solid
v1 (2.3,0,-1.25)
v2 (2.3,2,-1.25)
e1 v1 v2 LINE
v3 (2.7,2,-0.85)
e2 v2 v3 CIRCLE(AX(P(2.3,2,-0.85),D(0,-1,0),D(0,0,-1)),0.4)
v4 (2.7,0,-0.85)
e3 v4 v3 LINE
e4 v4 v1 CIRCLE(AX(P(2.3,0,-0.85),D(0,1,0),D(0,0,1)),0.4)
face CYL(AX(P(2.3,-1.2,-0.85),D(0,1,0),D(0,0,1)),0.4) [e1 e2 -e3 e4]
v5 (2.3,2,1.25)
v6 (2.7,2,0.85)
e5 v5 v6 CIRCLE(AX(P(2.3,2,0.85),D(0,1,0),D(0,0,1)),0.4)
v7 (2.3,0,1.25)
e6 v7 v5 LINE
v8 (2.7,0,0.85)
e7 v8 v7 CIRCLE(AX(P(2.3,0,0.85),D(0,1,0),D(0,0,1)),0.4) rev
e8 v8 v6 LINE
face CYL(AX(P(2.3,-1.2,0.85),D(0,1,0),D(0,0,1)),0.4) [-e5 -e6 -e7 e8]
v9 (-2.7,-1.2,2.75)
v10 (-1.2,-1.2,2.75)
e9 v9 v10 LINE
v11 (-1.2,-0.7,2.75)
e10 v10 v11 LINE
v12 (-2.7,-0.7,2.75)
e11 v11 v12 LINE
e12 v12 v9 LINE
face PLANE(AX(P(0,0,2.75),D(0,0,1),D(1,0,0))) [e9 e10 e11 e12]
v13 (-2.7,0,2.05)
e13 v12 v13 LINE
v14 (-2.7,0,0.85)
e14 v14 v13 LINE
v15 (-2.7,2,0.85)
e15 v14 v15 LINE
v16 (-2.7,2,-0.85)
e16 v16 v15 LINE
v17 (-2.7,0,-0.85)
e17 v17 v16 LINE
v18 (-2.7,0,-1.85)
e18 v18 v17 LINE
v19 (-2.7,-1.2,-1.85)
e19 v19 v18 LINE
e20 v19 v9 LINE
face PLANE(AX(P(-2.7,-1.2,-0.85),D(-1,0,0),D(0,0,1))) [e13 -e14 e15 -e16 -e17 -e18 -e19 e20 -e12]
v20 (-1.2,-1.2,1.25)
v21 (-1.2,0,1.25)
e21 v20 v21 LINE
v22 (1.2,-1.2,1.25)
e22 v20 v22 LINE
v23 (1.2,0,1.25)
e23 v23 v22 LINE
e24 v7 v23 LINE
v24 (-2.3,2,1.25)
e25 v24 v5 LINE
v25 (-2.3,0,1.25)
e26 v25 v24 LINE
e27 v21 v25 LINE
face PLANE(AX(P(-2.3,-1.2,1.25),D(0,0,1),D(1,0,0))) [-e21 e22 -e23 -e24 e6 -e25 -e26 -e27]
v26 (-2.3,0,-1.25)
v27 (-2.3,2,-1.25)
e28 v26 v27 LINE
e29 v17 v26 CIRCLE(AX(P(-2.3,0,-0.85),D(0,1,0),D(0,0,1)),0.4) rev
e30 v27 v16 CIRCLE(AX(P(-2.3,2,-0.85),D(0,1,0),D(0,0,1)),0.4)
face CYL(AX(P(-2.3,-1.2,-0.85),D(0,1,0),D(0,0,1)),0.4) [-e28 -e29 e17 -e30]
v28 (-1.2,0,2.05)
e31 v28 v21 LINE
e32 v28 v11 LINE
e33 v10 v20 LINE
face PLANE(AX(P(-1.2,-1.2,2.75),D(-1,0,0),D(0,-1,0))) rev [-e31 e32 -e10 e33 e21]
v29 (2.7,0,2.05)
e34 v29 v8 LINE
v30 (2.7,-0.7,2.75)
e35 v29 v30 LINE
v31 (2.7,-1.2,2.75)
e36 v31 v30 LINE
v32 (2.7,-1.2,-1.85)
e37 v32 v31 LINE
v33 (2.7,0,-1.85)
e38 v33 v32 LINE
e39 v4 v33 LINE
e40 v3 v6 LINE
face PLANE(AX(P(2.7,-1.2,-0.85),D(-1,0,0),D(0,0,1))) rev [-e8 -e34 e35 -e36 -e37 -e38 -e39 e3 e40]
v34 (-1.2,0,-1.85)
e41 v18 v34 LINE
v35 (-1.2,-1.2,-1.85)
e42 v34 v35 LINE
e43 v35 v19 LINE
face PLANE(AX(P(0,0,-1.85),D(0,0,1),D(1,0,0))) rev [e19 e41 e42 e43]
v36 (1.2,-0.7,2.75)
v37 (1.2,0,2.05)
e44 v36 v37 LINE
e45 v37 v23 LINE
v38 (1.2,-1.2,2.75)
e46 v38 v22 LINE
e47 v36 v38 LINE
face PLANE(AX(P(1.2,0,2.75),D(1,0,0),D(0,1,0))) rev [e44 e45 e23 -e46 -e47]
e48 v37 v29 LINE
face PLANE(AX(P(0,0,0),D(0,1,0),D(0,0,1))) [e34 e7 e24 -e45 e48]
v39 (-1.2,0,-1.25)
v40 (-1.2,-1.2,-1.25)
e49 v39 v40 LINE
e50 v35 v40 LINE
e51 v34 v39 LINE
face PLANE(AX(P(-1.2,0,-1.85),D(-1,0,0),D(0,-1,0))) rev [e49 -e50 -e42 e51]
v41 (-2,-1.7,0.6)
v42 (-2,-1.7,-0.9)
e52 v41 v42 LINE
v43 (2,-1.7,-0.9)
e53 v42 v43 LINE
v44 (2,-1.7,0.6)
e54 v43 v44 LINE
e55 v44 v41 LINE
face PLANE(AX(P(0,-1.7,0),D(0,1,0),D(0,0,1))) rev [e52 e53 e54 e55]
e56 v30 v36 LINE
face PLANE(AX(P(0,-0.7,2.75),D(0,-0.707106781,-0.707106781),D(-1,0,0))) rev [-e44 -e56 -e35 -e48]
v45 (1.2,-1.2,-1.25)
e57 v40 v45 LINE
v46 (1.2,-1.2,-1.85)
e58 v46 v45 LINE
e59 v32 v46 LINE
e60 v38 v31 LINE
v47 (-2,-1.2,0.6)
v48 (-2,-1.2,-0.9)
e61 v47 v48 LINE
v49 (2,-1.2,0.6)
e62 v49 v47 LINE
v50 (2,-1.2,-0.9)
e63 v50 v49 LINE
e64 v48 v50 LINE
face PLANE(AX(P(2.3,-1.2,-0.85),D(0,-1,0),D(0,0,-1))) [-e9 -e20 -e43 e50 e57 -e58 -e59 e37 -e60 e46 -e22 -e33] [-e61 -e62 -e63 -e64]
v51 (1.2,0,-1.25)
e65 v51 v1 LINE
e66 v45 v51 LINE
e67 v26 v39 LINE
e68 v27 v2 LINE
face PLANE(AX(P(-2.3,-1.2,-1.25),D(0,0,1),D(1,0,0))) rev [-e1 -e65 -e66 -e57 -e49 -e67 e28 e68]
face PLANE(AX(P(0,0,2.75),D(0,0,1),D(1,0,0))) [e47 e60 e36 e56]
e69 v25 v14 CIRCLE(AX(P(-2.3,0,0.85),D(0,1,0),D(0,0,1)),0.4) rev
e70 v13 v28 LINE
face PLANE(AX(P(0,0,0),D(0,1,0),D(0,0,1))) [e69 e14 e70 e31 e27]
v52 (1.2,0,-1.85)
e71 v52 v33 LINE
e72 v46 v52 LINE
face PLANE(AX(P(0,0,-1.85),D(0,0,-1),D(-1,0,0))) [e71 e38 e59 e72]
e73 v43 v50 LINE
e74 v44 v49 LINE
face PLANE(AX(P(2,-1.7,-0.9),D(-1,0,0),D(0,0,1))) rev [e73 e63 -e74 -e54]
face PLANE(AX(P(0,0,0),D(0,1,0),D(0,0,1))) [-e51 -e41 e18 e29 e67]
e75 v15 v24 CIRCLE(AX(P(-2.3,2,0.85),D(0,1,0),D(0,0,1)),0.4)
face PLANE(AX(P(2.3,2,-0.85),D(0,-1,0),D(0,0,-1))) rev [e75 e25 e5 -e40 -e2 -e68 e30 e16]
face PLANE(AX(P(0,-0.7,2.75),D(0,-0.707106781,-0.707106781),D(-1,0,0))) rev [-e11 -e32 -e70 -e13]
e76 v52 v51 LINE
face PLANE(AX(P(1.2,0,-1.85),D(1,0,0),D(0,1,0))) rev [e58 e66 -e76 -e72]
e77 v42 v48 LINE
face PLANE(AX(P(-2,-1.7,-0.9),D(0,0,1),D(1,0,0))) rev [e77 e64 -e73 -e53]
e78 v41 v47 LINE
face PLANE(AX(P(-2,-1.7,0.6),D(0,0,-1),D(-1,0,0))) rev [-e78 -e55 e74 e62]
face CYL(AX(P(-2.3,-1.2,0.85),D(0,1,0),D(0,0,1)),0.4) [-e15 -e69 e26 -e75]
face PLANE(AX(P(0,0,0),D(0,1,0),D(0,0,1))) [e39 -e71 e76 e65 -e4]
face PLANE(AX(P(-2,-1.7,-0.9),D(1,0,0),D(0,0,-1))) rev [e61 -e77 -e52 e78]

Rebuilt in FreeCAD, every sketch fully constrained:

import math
import FreeCAD as App
import Part
import Sketcher

V = App.Vector


def edges_at(feature, points):
    """Names of the edges that pass closest to the given points."""
    edges = feature.Shape.Edges
    near = lambda p: min(range(len(edges)), key=lambda i: edges[i].distToShape(Part.Vertex(*p))[0])
    return sorted({f"Edge{near(p) + 1}" for p in points})

doc = App.newDocument("Part")
body = doc.addObject("PartDesign::Body", "Body")

# Sketch on XZ plane
sketch1 = body.newObject("Sketcher::SketchObject", "Sketch")
sketch1.AttachmentSupport = (doc.getObject("XZ_Plane"), [""])
sketch1.MapMode = "FlatFace"
sketch1.addGeometry([
    Part.LineSegment(V(-2.7, -0.85, 0), V(-2.7, 0.85, 0)),  # 0
    Part.ArcOfCircle(Part.Circle(V(-2.3, 0.85, 0), V(0, 0, 1), 0.4), math.radians(90), math.radians(180)),  # 1
    Part.LineSegment(V(-2.3, 1.25, 0), V(2.3, 1.25, 0)),  # 2
    Part.ArcOfCircle(Part.Circle(V(2.3, 0.85, 0), V(0, 0, 1), 0.4), math.radians(0), math.radians(90)),  # 3
    Part.LineSegment(V(2.7, 0.85, 0), V(2.7, -0.85, 0)),  # 4
    Part.ArcOfCircle(Part.Circle(V(2.3, -0.85, 0), V(0, 0, 1), 0.4), math.radians(-90), math.radians(0)),  # 5
    Part.LineSegment(V(2.3, -1.25, 0), V(-2.3, -1.25, 0)),  # 6
    Part.ArcOfCircle(Part.Circle(V(-2.3, -0.85, 0), V(0, 0, 1), 0.4), math.radians(-180), math.radians(-90)),  # 7
], False)
sketch1.addConstraint([
    Sketcher.Constraint("Tangent", 0, 2, 1, 2),
    Sketcher.Constraint("Tangent", 1, 1, 2, 1),
    Sketcher.Constraint("Tangent", 2, 2, 3, 2),
    Sketcher.Constraint("Tangent", 3, 1, 4, 1),
    Sketcher.Constraint("Tangent", 4, 2, 5, 2),
    Sketcher.Constraint("Tangent", 5, 1, 6, 1),
    Sketcher.Constraint("Tangent", 6, 2, 7, 2),
    Sketcher.Constraint("Tangent", 7, 1, 0, 1),
    Sketcher.Constraint("Vertical", 0),
    Sketcher.Constraint("Horizontal", 2),
    Sketcher.Constraint("Vertical", 4),
    Sketcher.Constraint("Horizontal", 6),
    Sketcher.Constraint("Equal", 1, 3),
    Sketcher.Constraint("Equal", 3, 5),
    Sketcher.Constraint("Equal", 5, 7),
    Sketcher.Constraint("Symmetric", 1, 3, 5, 3, -1, 1),
    Sketcher.Constraint("Radius", 1, 0.4),
    Sketcher.Constraint("DistanceX", 2, 1, 2, 2, 4.6),
    Sketcher.Constraint("DistanceY", 0, 1, 0, 2, 1.7),
])
pad1 = body.newObject("PartDesign::Pad", "Pad")
pad1.Profile = sketch1
pad1.Type = "TwoLengths"
pad1.Length = 2
pad1.Length2 = 1.2
pad1.Reversed = True

# Sketch on XZ plane
sketch2 = body.newObject("Sketcher::SketchObject", "Sketch001")
sketch2.AttachmentSupport = (doc.getObject("XZ_Plane"), [""])
sketch2.MapMode = "FlatFace"
sketch2.addGeometry([
    Part.LineSegment(V(-2.7, -1.25, 0), V(-2.7, 1.25, 0)),
    Part.LineSegment(V(-2.7, 1.25, 0), V(2.7, 1.25, 0)),
    Part.LineSegment(V(2.7, 1.25, 0), V(2.7, -1.25, 0)),
    Part.LineSegment(V(2.7, -1.25, 0), V(-2.7, -1.25, 0)),
], False)
sketch2.addConstraint([
    Sketcher.Constraint("Coincident", 0, 2, 1, 1),
    Sketcher.Constraint("Coincident", 1, 2, 2, 1),
    Sketcher.Constraint("Coincident", 2, 2, 3, 1),
    Sketcher.Constraint("Coincident", 3, 2, 0, 1),
    Sketcher.Constraint("Vertical", 0),
    Sketcher.Constraint("Horizontal", 1),
    Sketcher.Constraint("Vertical", 2),
    Sketcher.Constraint("Horizontal", 3),
    Sketcher.Constraint("Symmetric", 0, 2, 2, 2, -1, 1),
    Sketcher.Constraint("DistanceX", 1, 1, 1, 2, 5.4),
    Sketcher.Constraint("DistanceY", 0, 1, 0, 2, 2.5),
])
pad2 = body.newObject("PartDesign::Pad", "Pad001")
pad2.Profile = sketch2
pad2.Length = 1.2

# Sketch on XZ plane
sketch3 = body.newObject("Sketcher::SketchObject", "Sketch002")
sketch3.AttachmentSupport = (doc.getObject("XZ_Plane"), [""])
sketch3.MapMode = "FlatFace"
sketch3.AttachmentOffset = App.Placement(V(0, 0, 1.2), App.Rotation())
sketch3.addGeometry([
    Part.LineSegment(V(2, -0.9, 0), V(2, 0.6, 0)),
    Part.LineSegment(V(2, 0.6, 0), V(-2, 0.6, 0)),
    Part.LineSegment(V(-2, 0.6, 0), V(-2, -0.9, 0)),
    Part.LineSegment(V(-2, -0.9, 0), V(2, -0.9, 0)),
], False)
sketch3.addConstraint([
    Sketcher.Constraint("Coincident", 0, 2, 1, 1),
    Sketcher.Constraint("Coincident", 1, 2, 2, 1),
    Sketcher.Constraint("Coincident", 2, 2, 3, 1),
    Sketcher.Constraint("Coincident", 3, 2, 0, 1),
    Sketcher.Constraint("Vertical", 0),
    Sketcher.Constraint("Horizontal", 1),
    Sketcher.Constraint("Vertical", 2),
    Sketcher.Constraint("Horizontal", 3),
    Sketcher.Constraint("DistanceX", 1, 2, 1, 1, 4.0),
    Sketcher.Constraint("DistanceY", 0, 1, 0, 2, 1.5),
    Sketcher.Constraint("DistanceX", -1, 1, 0, 2, 2.0),
    Sketcher.Constraint("DistanceY", -1, 1, 0, 2, 0.6),
])
pad3 = body.newObject("PartDesign::Pad", "Pad002")
pad3.Profile = sketch3
pad3.Length = 0.5

# Sketch on XY plane
sketch4 = body.newObject("Sketcher::SketchObject", "Sketch003")
sketch4.AttachmentSupport = (doc.getObject("XY_Plane"), [""])
sketch4.MapMode = "FlatFace"
sketch4.AttachmentOffset = App.Placement(V(0, 0, -1.25), App.Rotation())
sketch4.addGeometry([
    Part.LineSegment(V(-1.2, 0, 0), V(-1.2, -1.2, 0)),  # 0
    Part.LineSegment(V(-1.2, -1.2, 0), V(-2.7, -1.2, 0)),  # 1
    Part.LineSegment(V(-2.7, -1.2, 0), V(-2.7, 0, 0)),  # 2
    Part.LineSegment(V(-2.7, 0, 0), V(-1.2, 0, 0)),  # 3
    Part.LineSegment(V(2.7, 0, 0), V(2.7, -1.2, 0)),  # 4
    Part.LineSegment(V(2.7, -1.2, 0), V(1.2, -1.2, 0)),  # 5
    Part.LineSegment(V(1.2, -1.2, 0), V(1.2, 0, 0)),  # 6
    Part.LineSegment(V(1.2, 0, 0), V(2.7, 0, 0)),  # 7
], False)
sketch4.addConstraint([
    Sketcher.Constraint("Coincident", 0, 2, 1, 1),
    Sketcher.Constraint("Coincident", 1, 2, 2, 1),
    Sketcher.Constraint("Coincident", 2, 2, 3, 1),
    Sketcher.Constraint("Coincident", 3, 2, 0, 1),
    Sketcher.Constraint("Coincident", 4, 2, 5, 1),
    Sketcher.Constraint("Coincident", 5, 2, 6, 1),
    Sketcher.Constraint("Coincident", 6, 2, 7, 1),
    Sketcher.Constraint("Coincident", 7, 2, 4, 1),
    Sketcher.Constraint("Vertical", 0),
    Sketcher.Constraint("Horizontal", 1),
    Sketcher.Constraint("Vertical", 2),
    Sketcher.Constraint("Horizontal", 3),
    Sketcher.Constraint("Vertical", 4),
    Sketcher.Constraint("Horizontal", 5),
    Sketcher.Constraint("Vertical", 6),
    Sketcher.Constraint("Horizontal", 7),
    Sketcher.Constraint("Symmetric", 3, 2, 6, 2, -1, 1),
    Sketcher.Constraint("Symmetric", 1, 2, 4, 2, -2),
    Sketcher.Constraint("PointOnObject", 2, 2, -1),
    Sketcher.Constraint("DistanceX", 1, 2, 1, 1, 1.5),
    Sketcher.Constraint("DistanceY", 0, 2, 0, 1, 1.2),
    Sketcher.Constraint("DistanceX", 0, 2, -1, 1, 1.2),
])
pad4 = body.newObject("PartDesign::Pad", "Pad003")
pad4.Profile = sketch4
pad4.Length = 0.6
pad4.Reversed = True

# Sketch on XY plane
sketch5 = body.newObject("Sketcher::SketchObject", "Sketch004")
sketch5.AttachmentSupport = (doc.getObject("XY_Plane"), [""])
sketch5.MapMode = "FlatFace"
sketch5.AttachmentOffset = App.Placement(V(0, 0, 1.25), App.Rotation())
sketch5.addGeometry([
    Part.LineSegment(V(1.2, 0, 0), V(1.2, -1.2, 0)),  # 0
    Part.LineSegment(V(1.2, -1.2, 0), V(2.7, -1.2, 0)),  # 1
    Part.LineSegment(V(2.7, -1.2, 0), V(2.7, 0, 0)),  # 2
    Part.LineSegment(V(2.7, 0, 0), V(1.2, 0, 0)),  # 3
    Part.LineSegment(V(-2.7, 0, 0), V(-2.7, -1.2, 0)),  # 4
    Part.LineSegment(V(-2.7, -1.2, 0), V(-1.2, -1.2, 0)),  # 5
    Part.LineSegment(V(-1.2, -1.2, 0), V(-1.2, 0, 0)),  # 6
    Part.LineSegment(V(-1.2, 0, 0), V(-2.7, 0, 0)),  # 7
], False)
sketch5.addConstraint([
    Sketcher.Constraint("Coincident", 0, 2, 1, 1),
    Sketcher.Constraint("Coincident", 1, 2, 2, 1),
    Sketcher.Constraint("Coincident", 2, 2, 3, 1),
    Sketcher.Constraint("Coincident", 3, 2, 0, 1),
    Sketcher.Constraint("Coincident", 4, 2, 5, 1),
    Sketcher.Constraint("Coincident", 5, 2, 6, 1),
    Sketcher.Constraint("Coincident", 6, 2, 7, 1),
    Sketcher.Constraint("Coincident", 7, 2, 4, 1),
    Sketcher.Constraint("Vertical", 0),
    Sketcher.Constraint("Horizontal", 1),
    Sketcher.Constraint("Vertical", 2),
    Sketcher.Constraint("Horizontal", 3),
    Sketcher.Constraint("Vertical", 4),
    Sketcher.Constraint("Horizontal", 5),
    Sketcher.Constraint("Vertical", 6),
    Sketcher.Constraint("Horizontal", 7),
    Sketcher.Constraint("Symmetric", 3, 2, 6, 2, -1, 1),
    Sketcher.Constraint("Symmetric", 1, 2, 4, 2, -2),
    Sketcher.Constraint("PointOnObject", 2, 2, -1),
    Sketcher.Constraint("DistanceX", 1, 1, 1, 2, 1.5),
    Sketcher.Constraint("DistanceY", 0, 2, 0, 1, 1.2),
    Sketcher.Constraint("DistanceX", -1, 1, 0, 2, 1.2),
])
pad5 = body.newObject("PartDesign::Pad", "Pad004")
pad5.Profile = sketch5
pad5.Length = 1.5
doc.recompute()

chamfer = body.newObject("PartDesign::Chamfer", "Chamfer")
chamfer.Base = (pad5, edges_at(pad5, [(1.95, 0, 2.75), (-1.95, 0, 2.75)]))
chamfer.Size = 0.7

doc.recompute()
